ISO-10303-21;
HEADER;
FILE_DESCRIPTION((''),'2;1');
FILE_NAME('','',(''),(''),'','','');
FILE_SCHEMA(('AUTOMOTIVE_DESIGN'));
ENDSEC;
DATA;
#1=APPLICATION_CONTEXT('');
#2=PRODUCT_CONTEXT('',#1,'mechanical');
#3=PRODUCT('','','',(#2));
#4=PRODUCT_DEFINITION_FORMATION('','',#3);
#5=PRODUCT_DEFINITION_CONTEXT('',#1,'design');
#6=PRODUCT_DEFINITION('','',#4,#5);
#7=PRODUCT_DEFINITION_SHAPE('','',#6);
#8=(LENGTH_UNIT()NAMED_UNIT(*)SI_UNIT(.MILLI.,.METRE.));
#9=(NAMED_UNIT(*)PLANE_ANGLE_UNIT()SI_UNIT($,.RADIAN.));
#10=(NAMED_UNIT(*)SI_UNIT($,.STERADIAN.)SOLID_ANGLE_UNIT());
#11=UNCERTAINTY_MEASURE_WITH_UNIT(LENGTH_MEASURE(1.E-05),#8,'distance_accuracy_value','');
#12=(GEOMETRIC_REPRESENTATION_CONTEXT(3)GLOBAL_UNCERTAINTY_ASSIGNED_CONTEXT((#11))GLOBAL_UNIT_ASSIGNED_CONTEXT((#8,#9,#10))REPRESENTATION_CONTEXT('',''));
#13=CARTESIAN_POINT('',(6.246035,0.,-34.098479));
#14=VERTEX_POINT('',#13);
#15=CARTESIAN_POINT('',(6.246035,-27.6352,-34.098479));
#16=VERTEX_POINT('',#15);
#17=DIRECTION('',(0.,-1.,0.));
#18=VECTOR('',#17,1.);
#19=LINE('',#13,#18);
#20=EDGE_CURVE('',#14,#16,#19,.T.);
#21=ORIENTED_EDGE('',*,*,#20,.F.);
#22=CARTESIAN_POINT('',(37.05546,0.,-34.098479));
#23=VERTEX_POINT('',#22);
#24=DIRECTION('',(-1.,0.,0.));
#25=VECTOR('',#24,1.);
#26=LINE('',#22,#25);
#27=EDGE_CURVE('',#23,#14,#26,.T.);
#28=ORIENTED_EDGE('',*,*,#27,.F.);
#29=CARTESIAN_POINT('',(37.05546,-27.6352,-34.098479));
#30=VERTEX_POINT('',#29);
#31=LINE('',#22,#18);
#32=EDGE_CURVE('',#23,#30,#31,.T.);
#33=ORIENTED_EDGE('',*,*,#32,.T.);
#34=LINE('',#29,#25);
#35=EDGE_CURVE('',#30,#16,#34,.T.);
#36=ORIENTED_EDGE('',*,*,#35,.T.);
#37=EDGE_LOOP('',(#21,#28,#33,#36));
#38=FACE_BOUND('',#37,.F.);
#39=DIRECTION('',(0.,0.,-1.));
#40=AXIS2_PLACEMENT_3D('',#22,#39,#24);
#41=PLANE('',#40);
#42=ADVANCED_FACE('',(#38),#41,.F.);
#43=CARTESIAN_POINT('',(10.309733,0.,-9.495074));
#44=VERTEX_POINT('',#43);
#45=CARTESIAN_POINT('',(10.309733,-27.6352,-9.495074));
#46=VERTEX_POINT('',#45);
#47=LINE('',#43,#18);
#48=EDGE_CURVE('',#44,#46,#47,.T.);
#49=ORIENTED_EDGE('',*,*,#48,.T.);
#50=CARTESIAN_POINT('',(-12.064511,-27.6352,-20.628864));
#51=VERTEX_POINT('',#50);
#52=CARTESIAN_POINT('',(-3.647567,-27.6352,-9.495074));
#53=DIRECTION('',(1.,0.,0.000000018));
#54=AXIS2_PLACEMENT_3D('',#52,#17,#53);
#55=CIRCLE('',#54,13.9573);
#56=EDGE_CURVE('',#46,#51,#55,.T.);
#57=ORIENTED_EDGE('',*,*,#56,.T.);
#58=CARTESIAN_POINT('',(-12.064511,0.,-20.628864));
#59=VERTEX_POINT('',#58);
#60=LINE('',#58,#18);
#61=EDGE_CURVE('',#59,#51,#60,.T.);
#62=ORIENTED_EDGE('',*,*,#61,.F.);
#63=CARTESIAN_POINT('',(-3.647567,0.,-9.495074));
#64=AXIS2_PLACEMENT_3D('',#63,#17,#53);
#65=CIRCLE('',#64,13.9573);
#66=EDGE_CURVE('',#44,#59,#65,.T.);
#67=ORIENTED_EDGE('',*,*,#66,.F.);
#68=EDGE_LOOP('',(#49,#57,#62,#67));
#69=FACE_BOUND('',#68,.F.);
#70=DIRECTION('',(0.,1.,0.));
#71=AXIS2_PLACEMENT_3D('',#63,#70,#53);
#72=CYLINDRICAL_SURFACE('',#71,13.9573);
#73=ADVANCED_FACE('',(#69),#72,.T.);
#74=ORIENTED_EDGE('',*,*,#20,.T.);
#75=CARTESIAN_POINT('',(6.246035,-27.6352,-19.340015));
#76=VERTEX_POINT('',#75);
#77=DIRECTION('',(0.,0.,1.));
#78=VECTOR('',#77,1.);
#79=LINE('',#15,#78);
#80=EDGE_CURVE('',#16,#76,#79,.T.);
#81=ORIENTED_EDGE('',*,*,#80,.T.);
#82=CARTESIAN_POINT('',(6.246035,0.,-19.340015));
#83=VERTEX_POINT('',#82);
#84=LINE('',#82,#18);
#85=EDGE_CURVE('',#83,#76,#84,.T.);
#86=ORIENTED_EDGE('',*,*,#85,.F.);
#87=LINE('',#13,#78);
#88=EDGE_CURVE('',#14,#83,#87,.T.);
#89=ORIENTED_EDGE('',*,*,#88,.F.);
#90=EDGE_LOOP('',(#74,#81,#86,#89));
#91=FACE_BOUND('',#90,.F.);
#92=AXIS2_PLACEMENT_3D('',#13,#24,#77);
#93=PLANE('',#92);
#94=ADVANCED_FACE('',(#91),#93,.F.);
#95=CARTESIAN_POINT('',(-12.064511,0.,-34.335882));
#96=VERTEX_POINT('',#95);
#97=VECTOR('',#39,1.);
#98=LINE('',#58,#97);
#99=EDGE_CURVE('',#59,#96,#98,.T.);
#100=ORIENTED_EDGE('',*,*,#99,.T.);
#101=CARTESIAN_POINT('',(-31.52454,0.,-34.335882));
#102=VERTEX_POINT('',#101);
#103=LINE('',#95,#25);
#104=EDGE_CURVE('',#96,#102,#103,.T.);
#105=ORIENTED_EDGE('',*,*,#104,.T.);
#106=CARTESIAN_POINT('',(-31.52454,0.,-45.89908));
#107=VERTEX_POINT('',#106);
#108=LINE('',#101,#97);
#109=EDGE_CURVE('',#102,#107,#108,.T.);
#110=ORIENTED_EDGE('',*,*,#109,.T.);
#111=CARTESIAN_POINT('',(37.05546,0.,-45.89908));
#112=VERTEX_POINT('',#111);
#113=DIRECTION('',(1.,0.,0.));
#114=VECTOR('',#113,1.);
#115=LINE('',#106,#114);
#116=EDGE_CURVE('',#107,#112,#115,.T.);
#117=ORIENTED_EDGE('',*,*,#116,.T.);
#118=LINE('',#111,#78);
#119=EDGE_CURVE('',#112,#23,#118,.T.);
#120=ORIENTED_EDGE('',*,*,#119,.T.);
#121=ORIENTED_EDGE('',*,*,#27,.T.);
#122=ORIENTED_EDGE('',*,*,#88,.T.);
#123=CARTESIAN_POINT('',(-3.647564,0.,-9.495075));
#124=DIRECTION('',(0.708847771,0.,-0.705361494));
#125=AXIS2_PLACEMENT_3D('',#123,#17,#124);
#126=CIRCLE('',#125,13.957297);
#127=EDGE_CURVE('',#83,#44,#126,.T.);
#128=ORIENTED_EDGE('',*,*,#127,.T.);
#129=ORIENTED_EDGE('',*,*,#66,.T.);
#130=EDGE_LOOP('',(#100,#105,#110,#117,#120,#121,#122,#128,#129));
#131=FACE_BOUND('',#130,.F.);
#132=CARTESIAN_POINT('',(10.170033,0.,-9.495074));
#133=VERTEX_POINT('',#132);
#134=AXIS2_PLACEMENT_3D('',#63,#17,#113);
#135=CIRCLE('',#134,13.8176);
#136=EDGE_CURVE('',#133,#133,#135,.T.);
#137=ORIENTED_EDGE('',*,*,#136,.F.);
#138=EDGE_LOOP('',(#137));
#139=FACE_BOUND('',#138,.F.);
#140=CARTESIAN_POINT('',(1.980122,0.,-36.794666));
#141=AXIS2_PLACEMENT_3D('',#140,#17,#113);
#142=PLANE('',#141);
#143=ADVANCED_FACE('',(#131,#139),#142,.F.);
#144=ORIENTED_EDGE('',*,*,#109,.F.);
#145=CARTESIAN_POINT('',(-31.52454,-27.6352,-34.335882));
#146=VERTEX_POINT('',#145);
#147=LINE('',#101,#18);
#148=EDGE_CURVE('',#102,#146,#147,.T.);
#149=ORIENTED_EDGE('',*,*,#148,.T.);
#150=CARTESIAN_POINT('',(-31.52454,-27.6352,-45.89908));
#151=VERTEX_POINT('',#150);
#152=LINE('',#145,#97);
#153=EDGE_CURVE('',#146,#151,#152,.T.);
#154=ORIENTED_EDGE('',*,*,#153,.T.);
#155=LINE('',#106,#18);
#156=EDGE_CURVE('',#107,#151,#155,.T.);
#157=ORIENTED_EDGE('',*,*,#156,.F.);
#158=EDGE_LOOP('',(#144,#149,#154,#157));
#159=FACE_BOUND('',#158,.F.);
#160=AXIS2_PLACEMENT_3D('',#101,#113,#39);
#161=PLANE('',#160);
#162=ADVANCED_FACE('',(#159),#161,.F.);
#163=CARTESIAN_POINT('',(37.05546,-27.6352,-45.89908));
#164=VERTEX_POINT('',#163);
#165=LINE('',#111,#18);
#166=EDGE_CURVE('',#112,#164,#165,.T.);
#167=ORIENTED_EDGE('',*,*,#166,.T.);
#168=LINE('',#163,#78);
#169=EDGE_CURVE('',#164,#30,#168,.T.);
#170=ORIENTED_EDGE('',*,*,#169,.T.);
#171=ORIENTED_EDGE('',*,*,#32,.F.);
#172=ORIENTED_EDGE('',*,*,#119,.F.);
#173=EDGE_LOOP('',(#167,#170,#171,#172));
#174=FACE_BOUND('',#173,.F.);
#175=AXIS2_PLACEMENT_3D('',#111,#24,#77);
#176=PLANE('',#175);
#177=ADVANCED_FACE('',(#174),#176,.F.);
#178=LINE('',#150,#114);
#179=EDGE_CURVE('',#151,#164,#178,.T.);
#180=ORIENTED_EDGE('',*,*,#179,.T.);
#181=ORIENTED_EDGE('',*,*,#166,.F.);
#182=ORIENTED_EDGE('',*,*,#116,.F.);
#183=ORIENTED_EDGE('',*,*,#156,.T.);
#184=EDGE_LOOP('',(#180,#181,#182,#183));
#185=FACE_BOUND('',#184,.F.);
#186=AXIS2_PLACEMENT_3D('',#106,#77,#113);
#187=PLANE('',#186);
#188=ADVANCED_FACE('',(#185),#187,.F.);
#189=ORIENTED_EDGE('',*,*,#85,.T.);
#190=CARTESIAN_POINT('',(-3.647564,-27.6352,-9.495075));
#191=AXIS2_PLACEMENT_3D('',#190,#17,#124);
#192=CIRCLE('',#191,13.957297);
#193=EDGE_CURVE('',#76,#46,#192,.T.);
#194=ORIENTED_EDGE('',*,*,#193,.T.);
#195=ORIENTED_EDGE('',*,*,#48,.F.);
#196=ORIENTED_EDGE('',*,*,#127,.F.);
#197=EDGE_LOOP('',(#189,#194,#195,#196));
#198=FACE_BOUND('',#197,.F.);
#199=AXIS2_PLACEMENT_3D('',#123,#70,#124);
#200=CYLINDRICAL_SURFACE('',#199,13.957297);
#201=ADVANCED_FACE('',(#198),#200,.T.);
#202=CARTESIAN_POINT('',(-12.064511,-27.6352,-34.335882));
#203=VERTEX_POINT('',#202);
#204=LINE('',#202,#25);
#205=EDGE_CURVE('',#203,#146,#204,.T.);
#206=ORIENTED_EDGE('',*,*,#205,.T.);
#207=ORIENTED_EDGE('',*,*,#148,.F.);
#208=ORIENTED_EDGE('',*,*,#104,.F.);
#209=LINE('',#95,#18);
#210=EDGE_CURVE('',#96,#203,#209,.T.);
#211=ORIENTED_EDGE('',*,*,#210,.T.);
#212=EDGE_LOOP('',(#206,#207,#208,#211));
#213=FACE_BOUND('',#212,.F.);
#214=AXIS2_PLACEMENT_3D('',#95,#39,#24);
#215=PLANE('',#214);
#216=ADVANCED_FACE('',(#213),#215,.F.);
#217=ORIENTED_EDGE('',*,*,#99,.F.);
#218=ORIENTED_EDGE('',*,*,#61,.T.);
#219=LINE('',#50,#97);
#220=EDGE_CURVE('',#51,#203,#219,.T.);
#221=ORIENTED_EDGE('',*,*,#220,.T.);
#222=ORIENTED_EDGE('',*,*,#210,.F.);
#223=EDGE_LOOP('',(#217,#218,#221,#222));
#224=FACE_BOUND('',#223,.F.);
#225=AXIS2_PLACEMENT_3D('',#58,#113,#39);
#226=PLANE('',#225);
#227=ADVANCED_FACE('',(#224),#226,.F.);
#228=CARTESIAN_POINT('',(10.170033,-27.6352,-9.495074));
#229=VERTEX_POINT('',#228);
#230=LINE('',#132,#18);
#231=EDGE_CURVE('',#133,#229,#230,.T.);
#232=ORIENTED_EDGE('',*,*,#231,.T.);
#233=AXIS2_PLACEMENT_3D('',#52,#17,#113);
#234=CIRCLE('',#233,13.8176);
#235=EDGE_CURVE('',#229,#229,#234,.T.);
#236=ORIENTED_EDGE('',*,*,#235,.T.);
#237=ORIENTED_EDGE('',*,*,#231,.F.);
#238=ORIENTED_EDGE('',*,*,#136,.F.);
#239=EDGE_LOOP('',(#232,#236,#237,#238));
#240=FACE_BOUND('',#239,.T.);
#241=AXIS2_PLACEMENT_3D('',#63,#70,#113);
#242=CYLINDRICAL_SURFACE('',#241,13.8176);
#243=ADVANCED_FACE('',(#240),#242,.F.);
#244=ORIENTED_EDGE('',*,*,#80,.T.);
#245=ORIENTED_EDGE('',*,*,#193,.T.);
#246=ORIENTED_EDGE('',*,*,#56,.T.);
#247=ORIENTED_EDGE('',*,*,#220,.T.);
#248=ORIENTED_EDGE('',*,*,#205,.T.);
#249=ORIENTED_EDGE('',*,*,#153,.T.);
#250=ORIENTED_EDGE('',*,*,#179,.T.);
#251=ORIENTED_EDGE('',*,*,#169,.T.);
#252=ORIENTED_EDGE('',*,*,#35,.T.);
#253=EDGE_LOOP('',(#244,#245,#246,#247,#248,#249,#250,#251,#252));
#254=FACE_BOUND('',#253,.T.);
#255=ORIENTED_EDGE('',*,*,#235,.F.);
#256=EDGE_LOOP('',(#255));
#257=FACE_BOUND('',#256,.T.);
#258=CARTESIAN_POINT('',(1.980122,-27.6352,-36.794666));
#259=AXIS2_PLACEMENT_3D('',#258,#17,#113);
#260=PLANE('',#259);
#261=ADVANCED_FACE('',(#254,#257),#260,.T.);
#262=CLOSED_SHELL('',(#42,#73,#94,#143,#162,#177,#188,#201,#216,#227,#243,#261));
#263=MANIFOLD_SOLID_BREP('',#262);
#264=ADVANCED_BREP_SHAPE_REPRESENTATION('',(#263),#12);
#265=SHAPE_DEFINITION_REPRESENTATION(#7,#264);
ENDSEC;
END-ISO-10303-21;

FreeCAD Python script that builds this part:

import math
import FreeCAD as App
import Part
import Sketcher
from FreeCAD import Vector
Q = App.Units.Quantity

doc = App.newDocument("Part")
body = doc.addObject("PartDesign::Body", "Body")

sketch1 = doc.addObject("Sketcher::SketchObject", "Sketch")
body.addObject(sketch1)
sketch1.AttachmentSupport = (doc.XZ_Plane, [""])
sketch1.MapMode = "FlatFace"
sketch1.addGeometry([
    Part.LineSegment(Vector(-32, -34, 0), Vector(-32, -46, 0)),
    Part.LineSegment(Vector(-32, -46, 0), Vector(37, -46, 0)),
    Part.LineSegment(Vector(37, -46, 0), Vector(37, -34, 0)),
    Part.LineSegment(Vector(37, -34, 0), Vector(6, -34, 0)),
    Part.LineSegment(Vector(6, -34, 0), Vector(6, -19, 0)),
    Part.ArcOfCircle(Part.Circle(Vector(-4, -9, 0), Vector(0, 0, 1), 14), math.radians(-45), math.radians(0)),
    Part.ArcOfCircle(Part.Circle(Vector(-4, -9, 0), Vector(0, 0, 1), 14), math.radians(0), math.radians(233)),
    Part.LineSegment(Vector(-12, -21, 0), Vector(-12, -34, 0)),
    Part.LineSegment(Vector(-12, -34, 0), Vector(-32, -34, 0)),
    Part.Circle(Vector(-4, -9, 0), Vector(0, 0, 1), 14),
], False)
sketch1.addConstraint([
    Sketcher.Constraint("Coincident", 0, 2, 1, 1),
    Sketcher.Constraint("Coincident", 1, 2, 2, 1),
    Sketcher.Constraint("Coincident", 2, 2, 3, 1),
    Sketcher.Constraint("Coincident", 3, 2, 4, 1),
    Sketcher.Constraint("Coincident", 4, 2, 5, 1),
    Sketcher.Constraint("Tangent", 5, 2, 6, 1),
    Sketcher.Constraint("Coincident", 6, 2, 7, 1),
    Sketcher.Constraint("Coincident", 7, 2, 8, 1),
    Sketcher.Constraint("Coincident", 8, 2, 0, 1),
    Sketcher.Constraint("Vertical", 0),
    Sketcher.Constraint("Horizontal", 1),
    Sketcher.Constraint("Vertical", 2),
    Sketcher.Constraint("Horizontal", 3),
    Sketcher.Constraint("Vertical", 4),
    Sketcher.Constraint("Vertical", 7),
    Sketcher.Constraint("Horizontal", 8),
    Sketcher.Constraint("Coincident", 9, 3, 5, 3),
    Sketcher.Constraint("Horizontal", 9, 3, 5, 2),
    Sketcher.Constraint("Diameter", 9, Q("1.088 in")),
    Sketcher.Constraint("DistanceX", 1, 1, 1, 2, Q("2.7 in")),
    Sketcher.Constraint("Radius", 5, Q("0.5494999 in")),
    Sketcher.Constraint("Radius", 6, Q("0.5495 in")),
    Sketcher.Constraint("DistanceY", 2, 1, 2, 2, 11.800601),
    Sketcher.Constraint("DistanceY", 3, 2, 6, 2, Q("0.5302998 in")),
    Sketcher.Constraint("DistanceX", 8, 2, 8, 1, 19.460029),
    Sketcher.Constraint("DistanceX", 5, 3, 3, 2, 9.893599),
    Sketcher.Constraint("DistanceX", 3, 2, 3, 1, 30.809425),
    Sketcher.Constraint("DistanceY", 0, 2, 0, 1, 11.563198),
    Sketcher.Constraint("DistanceX", 0, 2, -1, 1, 31.52454),
    Sketcher.Constraint("DistanceY", 0, 2, -1, 1, 45.89908),
])
pad1 = doc.addObject("PartDesign::Pad", "Pad")
body.addObject(pad1)
pad1.Profile = sketch1
pad1.Length = Q("1.088 in")

doc.recompute()
